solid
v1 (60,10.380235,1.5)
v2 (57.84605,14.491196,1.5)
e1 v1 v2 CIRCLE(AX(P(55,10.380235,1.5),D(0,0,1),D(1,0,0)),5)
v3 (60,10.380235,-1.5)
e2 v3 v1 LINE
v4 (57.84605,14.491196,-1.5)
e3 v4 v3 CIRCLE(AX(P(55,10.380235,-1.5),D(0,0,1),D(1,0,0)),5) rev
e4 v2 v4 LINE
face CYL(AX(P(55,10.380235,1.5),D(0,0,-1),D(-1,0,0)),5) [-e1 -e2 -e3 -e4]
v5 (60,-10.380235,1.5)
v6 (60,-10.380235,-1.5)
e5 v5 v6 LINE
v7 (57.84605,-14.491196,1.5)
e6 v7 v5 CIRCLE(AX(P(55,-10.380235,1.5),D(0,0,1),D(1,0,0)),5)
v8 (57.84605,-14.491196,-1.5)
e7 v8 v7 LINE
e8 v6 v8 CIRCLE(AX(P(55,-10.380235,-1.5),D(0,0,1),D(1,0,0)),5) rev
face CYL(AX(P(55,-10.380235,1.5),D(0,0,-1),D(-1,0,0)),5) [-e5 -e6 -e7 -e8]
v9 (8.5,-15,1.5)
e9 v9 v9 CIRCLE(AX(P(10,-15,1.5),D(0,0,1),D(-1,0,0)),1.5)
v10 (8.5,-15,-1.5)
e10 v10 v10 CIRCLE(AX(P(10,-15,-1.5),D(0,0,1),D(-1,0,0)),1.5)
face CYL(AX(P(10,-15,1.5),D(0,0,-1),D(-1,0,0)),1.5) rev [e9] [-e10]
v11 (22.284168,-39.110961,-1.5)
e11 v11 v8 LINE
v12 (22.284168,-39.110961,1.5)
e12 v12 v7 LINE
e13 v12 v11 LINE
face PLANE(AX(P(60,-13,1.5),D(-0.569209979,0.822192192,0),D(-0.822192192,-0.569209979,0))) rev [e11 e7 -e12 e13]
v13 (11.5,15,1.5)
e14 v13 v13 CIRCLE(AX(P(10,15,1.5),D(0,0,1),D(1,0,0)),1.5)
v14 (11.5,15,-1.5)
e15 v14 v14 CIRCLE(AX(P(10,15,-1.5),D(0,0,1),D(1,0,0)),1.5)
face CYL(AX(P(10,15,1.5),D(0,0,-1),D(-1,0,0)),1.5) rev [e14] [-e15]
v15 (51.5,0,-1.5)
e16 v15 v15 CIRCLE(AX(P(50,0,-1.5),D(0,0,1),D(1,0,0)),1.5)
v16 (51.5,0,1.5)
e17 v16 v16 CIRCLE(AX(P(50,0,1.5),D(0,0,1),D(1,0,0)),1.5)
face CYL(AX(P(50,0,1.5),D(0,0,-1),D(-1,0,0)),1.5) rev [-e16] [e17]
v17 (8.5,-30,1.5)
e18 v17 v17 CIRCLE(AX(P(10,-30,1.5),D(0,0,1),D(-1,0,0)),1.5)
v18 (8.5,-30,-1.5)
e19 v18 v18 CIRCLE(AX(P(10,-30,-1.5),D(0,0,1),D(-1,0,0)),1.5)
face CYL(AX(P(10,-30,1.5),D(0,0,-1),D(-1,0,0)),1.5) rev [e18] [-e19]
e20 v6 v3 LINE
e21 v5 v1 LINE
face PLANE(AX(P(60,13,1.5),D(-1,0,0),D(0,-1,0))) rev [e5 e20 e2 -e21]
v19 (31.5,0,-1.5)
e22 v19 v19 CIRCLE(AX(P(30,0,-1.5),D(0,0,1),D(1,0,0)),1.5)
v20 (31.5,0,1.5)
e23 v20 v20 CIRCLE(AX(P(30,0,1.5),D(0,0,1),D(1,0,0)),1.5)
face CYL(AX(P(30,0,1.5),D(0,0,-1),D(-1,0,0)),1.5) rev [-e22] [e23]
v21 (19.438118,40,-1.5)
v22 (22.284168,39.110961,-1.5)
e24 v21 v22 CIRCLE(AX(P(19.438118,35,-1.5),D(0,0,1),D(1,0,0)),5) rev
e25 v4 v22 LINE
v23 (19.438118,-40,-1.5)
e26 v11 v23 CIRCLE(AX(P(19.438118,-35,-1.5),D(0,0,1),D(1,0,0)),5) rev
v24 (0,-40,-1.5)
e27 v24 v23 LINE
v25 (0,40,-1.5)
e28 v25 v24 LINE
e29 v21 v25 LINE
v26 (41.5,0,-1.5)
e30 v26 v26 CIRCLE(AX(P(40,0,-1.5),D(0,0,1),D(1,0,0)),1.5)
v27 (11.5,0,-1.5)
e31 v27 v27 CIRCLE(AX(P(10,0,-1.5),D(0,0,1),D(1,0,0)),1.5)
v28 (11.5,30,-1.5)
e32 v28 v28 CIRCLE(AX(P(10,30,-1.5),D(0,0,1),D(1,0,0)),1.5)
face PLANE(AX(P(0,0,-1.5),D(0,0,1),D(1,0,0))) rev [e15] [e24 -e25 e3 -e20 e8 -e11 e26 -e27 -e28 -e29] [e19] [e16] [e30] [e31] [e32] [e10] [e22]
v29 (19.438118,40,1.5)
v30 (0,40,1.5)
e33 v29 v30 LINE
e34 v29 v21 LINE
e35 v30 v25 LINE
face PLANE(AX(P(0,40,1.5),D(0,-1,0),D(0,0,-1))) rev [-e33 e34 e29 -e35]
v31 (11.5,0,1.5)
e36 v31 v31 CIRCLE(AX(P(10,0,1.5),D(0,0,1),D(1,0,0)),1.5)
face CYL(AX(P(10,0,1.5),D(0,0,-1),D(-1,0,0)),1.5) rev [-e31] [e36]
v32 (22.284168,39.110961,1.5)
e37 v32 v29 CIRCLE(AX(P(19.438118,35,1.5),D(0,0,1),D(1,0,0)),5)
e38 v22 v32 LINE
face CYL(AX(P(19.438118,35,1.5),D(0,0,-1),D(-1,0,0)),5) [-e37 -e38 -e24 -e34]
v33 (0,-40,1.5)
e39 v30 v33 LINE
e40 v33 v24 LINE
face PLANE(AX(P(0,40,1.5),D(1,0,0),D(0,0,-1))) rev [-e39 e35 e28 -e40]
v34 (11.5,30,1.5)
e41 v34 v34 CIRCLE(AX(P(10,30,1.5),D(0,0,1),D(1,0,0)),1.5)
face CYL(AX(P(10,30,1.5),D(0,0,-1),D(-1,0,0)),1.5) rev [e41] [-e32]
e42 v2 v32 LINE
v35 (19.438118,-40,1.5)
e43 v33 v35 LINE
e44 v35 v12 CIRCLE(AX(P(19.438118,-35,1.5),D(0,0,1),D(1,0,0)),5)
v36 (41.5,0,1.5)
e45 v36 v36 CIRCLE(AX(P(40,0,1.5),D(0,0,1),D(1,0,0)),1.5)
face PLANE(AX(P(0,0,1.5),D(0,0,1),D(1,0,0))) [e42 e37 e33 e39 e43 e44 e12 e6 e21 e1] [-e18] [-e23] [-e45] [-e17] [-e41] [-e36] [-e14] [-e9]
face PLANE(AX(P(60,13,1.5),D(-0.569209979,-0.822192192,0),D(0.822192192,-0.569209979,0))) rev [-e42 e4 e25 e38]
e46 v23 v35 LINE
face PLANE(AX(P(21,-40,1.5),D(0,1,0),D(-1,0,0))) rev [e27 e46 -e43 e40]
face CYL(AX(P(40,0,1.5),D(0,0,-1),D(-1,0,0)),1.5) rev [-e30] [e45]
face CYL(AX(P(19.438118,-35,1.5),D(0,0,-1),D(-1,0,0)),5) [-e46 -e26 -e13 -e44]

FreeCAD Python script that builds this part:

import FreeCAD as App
import Part
import Sketcher
from FreeCAD import Vector
Q = App.Units.Quantity


def edges_at(feature, points):
    """Names of the edges that pass closest to the given points."""
    edges = feature.Shape.Edges
    near = lambda p: min(range(len(edges)), key=lambda i: edges[i].distToShape(Part.Vertex(*p))[0])
    return sorted({f"Edge{near(p) + 1}" for p in points})

doc = App.newDocument("Part")
body = doc.addObject("PartDesign::Body", "Body")

sketch1 = body.newObject("Sketcher::SketchObject", "Sketch")
sketch1.AttachmentSupport = (doc.getObject("XY_Plane"), [""])
sketch1.MapMode = "FlatFace"
sketch1.addGeometry([
    Part.LineSegment(Vector(0, 40, 0), Vector(0, -40, 0)),
    Part.LineSegment(Vector(0, -40, 0), Vector(21, -40, 0)),
    Part.LineSegment(Vector(21, -40, 0), Vector(60, -13, 0)),
    Part.LineSegment(Vector(60, -13, 0), Vector(60, 13, 0)),
    Part.LineSegment(Vector(60, 13, 0), Vector(21, 40, 0)),
    Part.LineSegment(Vector(21, 40, 0), Vector(0, 40, 0)),
    Part.Circle(Vector(10, -30, 0), Vector(0, 0, 1), 1.5),
    Part.Circle(Vector(10, -15, 0), Vector(0, 0, 1), 1.5),
    Part.Circle(Vector(10, 0, 0), Vector(0, 0, 1), 1.5),
    Part.Circle(Vector(10, 15, 0), Vector(0, 0, 1), 1.5),
    Part.Circle(Vector(10, 30, 0), Vector(0, 0, 1), 1.5),
    Part.Circle(Vector(30, 0, 0), Vector(0, 0, 1), 1.5),
    Part.Circle(Vector(40, 0, 0), Vector(0, 0, 1), 1.5),
    Part.Circle(Vector(50, 0, 0), Vector(0, 0, 1), 1.5),
], False)
sketch1.addConstraint([
    Sketcher.Constraint("Coincident", 0, 2, 1, 1),
    Sketcher.Constraint("Coincident", 1, 2, 2, 1),
    Sketcher.Constraint("Coincident", 2, 2, 3, 1),
    Sketcher.Constraint("Coincident", 3, 2, 4, 1),
    Sketcher.Constraint("Coincident", 4, 2, 5, 1),
    Sketcher.Constraint("Coincident", 5, 2, 0, 1),
    Sketcher.Constraint("Vertical", 0),
    Sketcher.Constraint("Horizontal", 1),
    Sketcher.Constraint("Vertical", 3),
    Sketcher.Constraint("Horizontal", 5),
    Sketcher.Constraint("Equal", 6, 7),
    Sketcher.Constraint("Equal", 7, 8),
    Sketcher.Constraint("Equal", 8, 9),
    Sketcher.Constraint("Equal", 9, 10),
    Sketcher.Constraint("Equal", 10, 11),
    Sketcher.Constraint("Equal", 11, 12),
    Sketcher.Constraint("Equal", 12, 13),
    Sketcher.Constraint("Symmetric", 0, 2, 5, 2, -1, 1),
    Sketcher.Constraint("Symmetric", 7, 3, 9, 3, -1),
    Sketcher.Constraint("Symmetric", 6, 3, 10, 3, -1),
    Sketcher.Constraint("PointOnObject", 8, 3, -1),
    Sketcher.Constraint("PointOnObject", 11, 3, -1),
    Sketcher.Constraint("PointOnObject", 12, 3, -1),
    Sketcher.Constraint("PointOnObject", 13, 3, -1),
    Sketcher.Constraint("Vertical", 6, 3, 7, 3),
    Sketcher.Constraint("Vertical", 7, 3, 8, 3),
    Sketcher.Constraint("Vertical", 1, 2, 4, 2),
    Sketcher.Constraint("Equal", 2, 4),
    Sketcher.Constraint("Diameter", 6, Q("3 mm")),
    Sketcher.Constraint("DistanceX", 1, 1, 1, 2, Q("21 mm")),
    Sketcher.Constraint("DistanceY", 0, 2, 0, 1, Q("80 mm")),
    Sketcher.Constraint("DistanceY", 3, 1, 3, 2, Q("26 mm")),
    Sketcher.Constraint("DistanceX", -1, 1, 6, 3, Q("10 mm")),
    Sketcher.Constraint("DistanceY", 6, 3, -1, 1, Q("30 mm")),
    Sketcher.Constraint("DistanceY", 7, 3, -1, 1, Q("15 mm")),
    Sketcher.Constraint("DistanceX", -1, 1, 11, 3, Q("30 mm")),
    Sketcher.Constraint("DistanceX", -1, 1, 12, 3, Q("40 mm")),
    Sketcher.Constraint("DistanceX", -1, 1, 13, 3, Q("50 mm")),
    Sketcher.Constraint("DistanceX", -1, 1, 2, 2, Q("60 mm")),
])
pad1 = body.newObject("PartDesign::Pad", "Pad")
pad1.Profile = sketch1
pad1.Length = 3
pad1.Midplane = True
doc.recompute()

fillet = body.newObject("PartDesign::Fillet", "Fillet")
fillet.Base = (pad1, edges_at(pad1, [
    (60, 13, 0),
    (60, -13, 0),
    (21, -40, 0),
    (21, 40, 0),
]))
fillet.Radius = 5

doc.recompute()
